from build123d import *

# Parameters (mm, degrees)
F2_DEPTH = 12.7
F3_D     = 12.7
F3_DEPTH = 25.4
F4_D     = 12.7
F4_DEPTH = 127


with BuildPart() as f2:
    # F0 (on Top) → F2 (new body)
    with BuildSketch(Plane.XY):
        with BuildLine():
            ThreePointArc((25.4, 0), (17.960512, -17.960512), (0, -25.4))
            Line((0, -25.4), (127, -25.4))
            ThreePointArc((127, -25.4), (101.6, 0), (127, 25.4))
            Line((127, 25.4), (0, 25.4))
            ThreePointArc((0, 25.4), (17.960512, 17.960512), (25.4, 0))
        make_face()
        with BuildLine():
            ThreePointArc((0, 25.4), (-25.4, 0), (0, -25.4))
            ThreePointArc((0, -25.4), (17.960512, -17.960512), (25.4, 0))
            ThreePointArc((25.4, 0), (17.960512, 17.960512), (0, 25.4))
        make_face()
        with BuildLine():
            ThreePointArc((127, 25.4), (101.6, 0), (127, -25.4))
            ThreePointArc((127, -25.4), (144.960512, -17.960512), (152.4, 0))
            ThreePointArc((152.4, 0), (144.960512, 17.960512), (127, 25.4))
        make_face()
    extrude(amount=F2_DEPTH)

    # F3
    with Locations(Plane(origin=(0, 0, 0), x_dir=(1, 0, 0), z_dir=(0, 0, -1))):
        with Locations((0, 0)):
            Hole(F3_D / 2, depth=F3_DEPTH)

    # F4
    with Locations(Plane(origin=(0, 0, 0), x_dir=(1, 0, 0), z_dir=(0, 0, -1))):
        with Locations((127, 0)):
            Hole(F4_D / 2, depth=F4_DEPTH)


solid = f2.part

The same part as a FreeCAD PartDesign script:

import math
import FreeCAD as App
import Part
import Sketcher
Q = App.Units.Quantity

doc = App.newDocument("Part")
params = doc.addObject("Spreadsheet::Sheet", "Params")
for row, (alias, value) in enumerate([
    ("sketch1_radius", "1 in"),
    ("sketch1_width", "5 in"),
    ("pad1_length", "0.5 in"),
    ("sketch2_diameter", "0.5 in"),
    ("hole_diameter", "0.5 in"),
    ("hole_depth", "1 in"),
    ("sketch3_diameter", "0.5 in"),
    ("hole2_diameter", "0.5 in"),
    ("hole2_depth", "5 in"),
], start=1):
    params.set(f"A{row}", alias)
    params.set(f"B{row}", "=" + value)
    params.setAlias(f"B{row}", alias)

body = doc.addObject("PartDesign::Body", "Body")

# Sketch on XY plane
sketch1 = body.newObject("Sketcher::SketchObject", "Sketch")
sketch1.AttachmentSupport = (doc.getObject("XY_Plane"), [""])
sketch1.MapMode = "FlatFace"
sketch1.addGeometry(Part.LineSegment(App.Vector(0, -25.4, 0), App.Vector(127, -25.4, 0)), False)
sketch1.addGeometry(Part.ArcOfCircle(Part.Circle(App.Vector(126.999999, 0.000001, 0), App.Vector(0, 0, 1), 25.400001), math.radians(-89.999998), math.radians(-0.000002)), False)
sketch1.addGeometry(Part.ArcOfCircle(Part.Circle(App.Vector(126.999999, -0.000001, 0), App.Vector(0, 0, 1), 25.400001), math.radians(0.000002), math.radians(89.999998)), False)
sketch1.addGeometry(Part.LineSegment(App.Vector(127, 25.4, 0), App.Vector(0, 25.4, 0)), False)
sketch1.addGeometry(Part.ArcOfCircle(Part.Circle(App.Vector(0, 0, 0), App.Vector(0, 0, 1), 25.4), math.radians(90), math.radians(270)), False)
sketch1.addConstraint(Sketcher.Constraint("Tangent", 0, 2, 1, 1))
sketch1.addConstraint(Sketcher.Constraint("Tangent", 1, 2, 2, 1))
sketch1.addConstraint(Sketcher.Constraint("Tangent", 2, 2, 3, 1))
sketch1.addConstraint(Sketcher.Constraint("Tangent", 3, 2, 4, 1))
sketch1.addConstraint(Sketcher.Constraint("Tangent", 4, 2, 0, 1))
sketch1.addConstraint(Sketcher.Constraint("Horizontal", 0))
sketch1.addConstraint(Sketcher.Constraint("Horizontal", 3))
sketch1.addConstraint(Sketcher.Constraint("Coincident", 4, 3, -1, 1))
sketch1.addConstraint(Sketcher.Constraint("Equal", 1, 2))
sketch1.addConstraint(Sketcher.Constraint("PointOnObject", 1, 2, -1))
sketch1.addConstraint(Sketcher.Constraint("Radius", 1, Q("1 in")))
sketch1.addConstraint(Sketcher.Constraint("DistanceX", 0, 1, 0, 2, Q("5 in")))
sketch1.setExpression("Constraints[10]", "Params.sketch1_radius")
sketch1.setExpression("Constraints[11]", "Params.sketch1_width")
pad1 = body.newObject("PartDesign::Pad", "Pad")
pad1.Profile = sketch1
pad1.setExpression("Length", "Params.pad1_length")

# Sketch on XY plane
sketch2 = body.newObject("Sketcher::SketchObject", "Sketch001")
sketch2.AttachmentSupport = (doc.getObject("XY_Plane"), [""])
sketch2.MapMode = "FlatFace"
sketch2.addGeometry(Part.Circle(App.Vector(0, 0, 0), App.Vector(0, 0, 1), 6.35), False)
sketch2.addConstraint(Sketcher.Constraint("Coincident", 0, 3, -1, 1))
sketch2.addConstraint(Sketcher.Constraint("Diameter", 0, Q("0.5 in")))
sketch2.setExpression("Constraints[1]", "Params.sketch2_diameter")
doc.recompute()
hole = body.newObject("PartDesign::Hole", "Hole")
hole.Profile = sketch2
hole.ThreadType = "None"
hole.setExpression("Diameter", "Params.hole_diameter")
hole.DepthType = "Dimension"
hole.setExpression("Depth", "Params.hole_depth")
hole.DrillPoint = "Flat"
hole.Reversed = True

# Sketch on XY plane
sketch3 = body.newObject("Sketcher::SketchObject", "Sketch002")
sketch3.AttachmentSupport = (doc.getObject("XY_Plane"), [""])
sketch3.MapMode = "FlatFace"
sketch3.addGeometry(Part.Circle(App.Vector(127, 0, 0), App.Vector(0, 0, 1), 6.35), False)
sketch3.addConstraint(Sketcher.Constraint("PointOnObject", 0, 3, -1))
sketch3.addConstraint(Sketcher.Constraint("Diameter", 0, Q("0.5 in")))
sketch3.addConstraint(Sketcher.Constraint("DistanceX", -1, 1, 0, 3, Q("5 in")))
sketch3.setExpression("Constraints[1]", "Params.sketch3_diameter")
doc.recompute()
hole2 = body.newObject("PartDesign::Hole", "Hole001")
hole2.Profile = sketch3
hole2.ThreadType = "None"
hole2.setExpression("Diameter", "Params.hole2_diameter")
hole2.DepthType = "Dimension"
hole2.setExpression("Depth", "Params.hole2_depth")
hole2.DrillPoint = "Flat"
hole2.Reversed = True

doc.recompute()
